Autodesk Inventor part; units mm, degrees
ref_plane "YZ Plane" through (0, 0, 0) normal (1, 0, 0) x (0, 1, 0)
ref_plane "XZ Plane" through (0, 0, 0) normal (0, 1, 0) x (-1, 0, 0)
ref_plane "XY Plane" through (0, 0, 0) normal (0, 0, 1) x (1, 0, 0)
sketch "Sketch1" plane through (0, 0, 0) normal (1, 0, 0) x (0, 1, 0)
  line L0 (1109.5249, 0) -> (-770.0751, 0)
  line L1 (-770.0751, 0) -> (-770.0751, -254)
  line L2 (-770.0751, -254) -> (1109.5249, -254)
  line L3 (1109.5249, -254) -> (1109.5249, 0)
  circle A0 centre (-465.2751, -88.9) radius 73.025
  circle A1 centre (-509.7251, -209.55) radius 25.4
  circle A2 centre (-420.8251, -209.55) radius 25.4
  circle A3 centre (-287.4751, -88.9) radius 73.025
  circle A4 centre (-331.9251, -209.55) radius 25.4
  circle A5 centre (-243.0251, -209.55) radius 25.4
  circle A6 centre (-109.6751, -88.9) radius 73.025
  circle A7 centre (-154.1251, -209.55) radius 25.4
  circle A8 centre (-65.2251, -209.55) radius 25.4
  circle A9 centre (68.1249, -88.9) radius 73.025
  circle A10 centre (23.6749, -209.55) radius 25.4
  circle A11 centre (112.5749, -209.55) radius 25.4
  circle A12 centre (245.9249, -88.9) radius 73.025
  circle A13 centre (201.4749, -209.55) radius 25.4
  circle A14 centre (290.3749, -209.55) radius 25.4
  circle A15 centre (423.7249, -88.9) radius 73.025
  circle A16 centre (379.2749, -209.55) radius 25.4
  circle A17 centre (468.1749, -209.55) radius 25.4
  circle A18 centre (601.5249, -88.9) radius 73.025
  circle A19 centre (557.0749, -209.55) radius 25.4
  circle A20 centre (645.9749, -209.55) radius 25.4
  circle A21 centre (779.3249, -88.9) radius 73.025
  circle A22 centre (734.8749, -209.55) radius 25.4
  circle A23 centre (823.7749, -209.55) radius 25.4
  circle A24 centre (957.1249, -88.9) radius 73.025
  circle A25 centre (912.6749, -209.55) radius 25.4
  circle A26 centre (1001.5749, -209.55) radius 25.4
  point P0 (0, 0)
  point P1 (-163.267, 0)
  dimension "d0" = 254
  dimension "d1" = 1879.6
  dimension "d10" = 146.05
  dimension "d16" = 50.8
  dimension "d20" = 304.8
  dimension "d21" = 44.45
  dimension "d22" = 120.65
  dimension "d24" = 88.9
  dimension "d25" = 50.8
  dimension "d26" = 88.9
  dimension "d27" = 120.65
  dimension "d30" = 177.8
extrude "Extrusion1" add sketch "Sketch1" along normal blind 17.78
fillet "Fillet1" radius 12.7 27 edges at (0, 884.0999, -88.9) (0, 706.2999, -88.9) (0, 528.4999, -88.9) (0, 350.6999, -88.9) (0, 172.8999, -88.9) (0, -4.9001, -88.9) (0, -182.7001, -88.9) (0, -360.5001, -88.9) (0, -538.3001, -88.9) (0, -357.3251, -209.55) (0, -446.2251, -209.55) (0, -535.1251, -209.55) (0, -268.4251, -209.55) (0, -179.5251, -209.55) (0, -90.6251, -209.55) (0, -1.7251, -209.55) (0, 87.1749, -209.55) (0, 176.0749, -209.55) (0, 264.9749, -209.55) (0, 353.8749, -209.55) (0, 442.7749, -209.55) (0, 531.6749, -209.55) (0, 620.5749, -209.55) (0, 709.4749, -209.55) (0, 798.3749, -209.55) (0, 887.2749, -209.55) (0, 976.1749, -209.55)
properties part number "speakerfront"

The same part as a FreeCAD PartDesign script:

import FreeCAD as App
import Part
import Sketcher

V = App.Vector
Q = App.Units.Quantity


def edges_at(feature, points):
    """Names of the edges that pass closest to the given points."""
    edges = feature.Shape.Edges
    near = lambda p: min(range(len(edges)), key=lambda i: edges[i].distToShape(Part.Vertex(*p))[0])
    return sorted({f"Edge{near(p) + 1}" for p in points})


def add_polygon(sketch, points):
    """Adds a closed chain of lines whose ends are joined by coincident constraints."""
    first, n = sketch.GeometryCount, len(points)
    for a, b in zip(points, points[1:] + points[:1]):
        sketch.addGeometry(Part.LineSegment(App.Vector(*a, 0), App.Vector(*b, 0)), False)
    for i in range(n):
        sketch.addConstraint(Sketcher.Constraint("Coincident", first + i, 2, first + (i + 1) % n, 1))

doc = App.newDocument("Part")
body = doc.addObject("PartDesign::Body", "Body")

# Sketch on YZ plane
sketch1 = body.newObject("Sketcher::SketchObject", "Sketch")
sketch1.AttachmentSupport = (doc.getObject("YZ_Plane"), [""])
sketch1.MapMode = "FlatFace"
add_polygon(sketch1, [(1110, -254), (1110, 0), (-770, 0), (-770, -254)])  # lines 0-3
sketch1.addGeometry(Part.Circle(V(-510, -210, 0), V(0, 0, 1), 25), False)  # 4
sketch1.addGeometry(Part.Circle(V(-421, -210, 0), V(0, 0, 1), 25), False)  # 5
sketch1.addGeometry(Part.Circle(V(-332, -210, 0), V(0, 0, 1), 25), False)  # 6
sketch1.addGeometry(Part.Circle(V(-243, -210, 0), V(0, 0, 1), 25), False)  # 7
sketch1.addGeometry(Part.Circle(V(-154, -210, 0), V(0, 0, 1), 25), False)  # 8
sketch1.addGeometry(Part.Circle(V(-65, -210, 0), V(0, 0, 1), 25), False)  # 9
sketch1.addGeometry(Part.Circle(V(24, -210, 0), V(0, 0, 1), 25), False)  # 10
sketch1.addGeometry(Part.Circle(V(113, -210, 0), V(0, 0, 1), 25), False)  # 11
sketch1.addGeometry(Part.Circle(V(201, -210, 0), V(0, 0, 1), 25), False)  # 12
sketch1.addGeometry(Part.Circle(V(290, -210, 0), V(0, 0, 1), 25), False)  # 13
sketch1.addGeometry(Part.Circle(V(379, -210, 0), V(0, 0, 1), 25), False)  # 14
sketch1.addGeometry(Part.Circle(V(468, -210, 0), V(0, 0, 1), 25), False)  # 15
sketch1.addGeometry(Part.Circle(V(557, -210, 0), V(0, 0, 1), 25), False)  # 16
sketch1.addGeometry(Part.Circle(V(646, -210, 0), V(0, 0, 1), 25), False)  # 17
sketch1.addGeometry(Part.Circle(V(735, -210, 0), V(0, 0, 1), 25), False)  # 18
sketch1.addGeometry(Part.Circle(V(824, -210, 0), V(0, 0, 1), 25), False)  # 19
sketch1.addGeometry(Part.Circle(V(913, -210, 0), V(0, 0, 1), 25), False)  # 20
sketch1.addGeometry(Part.Circle(V(1002, -210, 0), V(0, 0, 1), 25), False)  # 21
sketch1.addGeometry(Part.Circle(V(-465, -89, 0), V(0, 0, 1), 73), False)  # 22
sketch1.addGeometry(Part.Circle(V(-287, -89, 0), V(0, 0, 1), 73), False)  # 23
sketch1.addGeometry(Part.Circle(V(-110, -89, 0), V(0, 0, 1), 73), False)  # 24
sketch1.addGeometry(Part.Circle(V(68, -89, 0), V(0, 0, 1), 73), False)  # 25
sketch1.addGeometry(Part.Circle(V(246, -89, 0), V(0, 0, 1), 73), False)  # 26
sketch1.addGeometry(Part.Circle(V(424, -89, 0), V(0, 0, 1), 73), False)  # 27
sketch1.addGeometry(Part.Circle(V(602, -89, 0), V(0, 0, 1), 73), False)  # 28
sketch1.addGeometry(Part.Circle(V(779, -89, 0), V(0, 0, 1), 73), False)  # 29
sketch1.addGeometry(Part.Circle(V(957, -89, 0), V(0, 0, 1), 73), False)  # 30
sketch1.addConstraint([
    Sketcher.Constraint("Vertical", 0),
    Sketcher.Constraint("Horizontal", 1),
    Sketcher.Constraint("Vertical", 2),
    Sketcher.Constraint("Horizontal", 3),
    Sketcher.Constraint("Equal", 4, 5),
    Sketcher.Constraint("Equal", 5, 6),
    Sketcher.Constraint("Equal", 6, 7),
    Sketcher.Constraint("Equal", 7, 8),
    Sketcher.Constraint("Equal", 8, 9),
    Sketcher.Constraint("Equal", 9, 10),
    Sketcher.Constraint("Equal", 10, 11),
    Sketcher.Constraint("Equal", 11, 12),
    Sketcher.Constraint("Equal", 12, 13),
    Sketcher.Constraint("Equal", 13, 14),
    Sketcher.Constraint("Equal", 14, 15),
    Sketcher.Constraint("Equal", 15, 16),
    Sketcher.Constraint("Equal", 16, 17),
    Sketcher.Constraint("Equal", 17, 18),
    Sketcher.Constraint("Equal", 18, 19),
    Sketcher.Constraint("Equal", 19, 20),
    Sketcher.Constraint("Equal", 20, 21),
    Sketcher.Constraint("Equal", 22, 23),
    Sketcher.Constraint("Equal", 23, 24),
    Sketcher.Constraint("Equal", 24, 25),
    Sketcher.Constraint("Equal", 25, 26),
    Sketcher.Constraint("Equal", 26, 27),
    Sketcher.Constraint("Equal", 27, 28),
    Sketcher.Constraint("Equal", 28, 29),
    Sketcher.Constraint("Equal", 29, 30),
    Sketcher.Constraint("PointOnObject", 0, 2, -1),
    Sketcher.Constraint("Horizontal", 4, 3, 5, 3),
    Sketcher.Constraint("Horizontal", 5, 3, 6, 3),
    Sketcher.Constraint("Horizontal", 6, 3, 7, 3),
    Sketcher.Constraint("Horizontal", 7, 3, 8, 3),
    Sketcher.Constraint("Horizontal", 8, 3, 9, 3),
    Sketcher.Constraint("Horizontal", 9, 3, 10, 3),
    Sketcher.Constraint("Horizontal", 10, 3, 11, 3),
    Sketcher.Constraint("Horizontal", 11, 3, 12, 3),
    Sketcher.Constraint("Horizontal", 12, 3, 13, 3),
    Sketcher.Constraint("Horizontal", 13, 3, 14, 3),
    Sketcher.Constraint("Horizontal", 14, 3, 15, 3),
    Sketcher.Constraint("Horizontal", 15, 3, 16, 3),
    Sketcher.Constraint("Horizontal", 16, 3, 17, 3),
    Sketcher.Constraint("Horizontal", 17, 3, 18, 3),
    Sketcher.Constraint("Horizontal", 18, 3, 19, 3),
    Sketcher.Constraint("Horizontal", 19, 3, 20, 3),
    Sketcher.Constraint("Horizontal", 20, 3, 21, 3),
    Sketcher.Constraint("Horizontal", 22, 3, 23, 3),
    Sketcher.Constraint("Horizontal", 23, 3, 24, 3),
    Sketcher.Constraint("Horizontal", 24, 3, 25, 3),
    Sketcher.Constraint("Horizontal", 25, 3, 26, 3),
    Sketcher.Constraint("Horizontal", 26, 3, 27, 3),
    Sketcher.Constraint("Horizontal", 27, 3, 28, 3),
    Sketcher.Constraint("Horizontal", 28, 3, 29, 3),
    Sketcher.Constraint("Horizontal", 29, 3, 30, 3),
    Sketcher.Constraint("Diameter", 4, Q("2 in")),
    Sketcher.Constraint("Diameter", 22, Q("5.75 in")),
    Sketcher.Constraint("DistanceX", 1, 2, 1, 1, Q("74 in")),
    Sketcher.Constraint("DistanceY", 0, 1, 0, 2, Q("10 in")),
    Sketcher.Constraint("DistanceX", 4, 3, 6, 3, Q("7 in")),
    Sketcher.Constraint("DistanceX", 5, 3, 7, 3, Q("7 in")),
    Sketcher.Constraint("DistanceX", 6, 3, 8, 3, Q("7 in")),
    Sketcher.Constraint("DistanceX", 7, 3, 9, 3, Q("7 in")),
    Sketcher.Constraint("DistanceX", 8, 3, 10, 3, Q("7 in")),
    Sketcher.Constraint("DistanceX", 9, 3, 11, 3, Q("7 in")),
    Sketcher.Constraint("DistanceX", 10, 3, 12, 3, Q("7 in")),
    Sketcher.Constraint("DistanceX", 11, 3, 13, 3, Q("7 in")),
    Sketcher.Constraint("DistanceX", 12, 3, 14, 3, Q("7 in")),
    Sketcher.Constraint("DistanceX", 13, 3, 15, 3, Q("7 in")),
    Sketcher.Constraint("DistanceX", 14, 3, 16, 3, Q("7 in")),
    Sketcher.Constraint("DistanceX", 15, 3, 17, 3, Q("7 in")),
    Sketcher.Constraint("DistanceX", 16, 3, 18, 3, Q("7 in")),
    Sketcher.Constraint("DistanceX", 17, 3, 19, 3, Q("7 in")),
    Sketcher.Constraint("DistanceX", 18, 3, 20, 3, Q("7 in")),
    Sketcher.Constraint("DistanceX", 19, 3, 21, 3, Q("7 in")),
    Sketcher.Constraint("DistanceX", 22, 3, 23, 3, Q("7 in")),
    Sketcher.Constraint("DistanceX", 23, 3, 24, 3, Q("7 in")),
    Sketcher.Constraint("DistanceX", 24, 3, 25, 3, Q("7 in")),
    Sketcher.Constraint("DistanceX", 25, 3, 26, 3, Q("7 in")),
    Sketcher.Constraint("DistanceX", 26, 3, 27, 3, Q("7 in")),
    Sketcher.Constraint("DistanceX", 27, 3, 28, 3, Q("7 in")),
    Sketcher.Constraint("DistanceX", 28, 3, 29, 3, Q("7 in")),
    Sketcher.Constraint("DistanceX", 29, 3, 30, 3, Q("7 in")),
    Sketcher.Constraint("DistanceX", 1, 2, 22, 3, Q("12 in")),
    Sketcher.Constraint("DistanceY", 22, 3, -1, 1, Q("3.5 in")),
    Sketcher.Constraint("DistanceX", 4, 3, 5, 3, Q("3.5 in")),
    Sketcher.Constraint("DistanceX", 4, 3, 22, 3, Q("1.75 in")),
    Sketcher.Constraint("DistanceY", 4, 3, 22, 3, Q("4.75 in")),
    Sketcher.Constraint("DistanceX", 4, 3, -1, 1, 509.725),
])
pad1 = body.newObject("PartDesign::Pad", "Pad")
pad1.Profile = sketch1
pad1.Length = Q("0.7 in")
doc.recompute()

fillet = body.newObject("PartDesign::Fillet", "Fillet")
fillet.Base = (pad1, edges_at(pad1, [
    (0, 884.1, -88.9),
    (0, 706.3, -88.9),
    (0, 528.5, -88.9),
    (0, 350.7, -88.9),
    (0, 172.9, -88.9),
    (0, -4.9, -88.9),
    (0, -182.7, -88.9),
    (0, -360.5, -88.9),
    (0, -538.3, -88.9),
    (0, -357.325, -209.55),
    (0, -446.225, -209.55),
    (0, -535.125, -209.55),
    (0, -268.425, -209.55),
    (0, -179.525, -209.55),
    (0, -90.625, -209.55),
    (0, -1.725, -209.55),
    (0, 87.175, -209.55),
    (0, 176.075, -209.55),
    (0, 264.975, -209.55),
    (0, 353.875, -209.55),
    (0, 442.775, -209.55),
    (0, 531.675, -209.55),
    (0, 620.575, -209.55),
    (0, 709.475, -209.55),
    (0, 798.375, -209.55),
    (0, 887.275, -209.55),
    (0, 976.175, -209.55),
]))
fillet.Radius = Q("0.5 in")

doc.recompute()
